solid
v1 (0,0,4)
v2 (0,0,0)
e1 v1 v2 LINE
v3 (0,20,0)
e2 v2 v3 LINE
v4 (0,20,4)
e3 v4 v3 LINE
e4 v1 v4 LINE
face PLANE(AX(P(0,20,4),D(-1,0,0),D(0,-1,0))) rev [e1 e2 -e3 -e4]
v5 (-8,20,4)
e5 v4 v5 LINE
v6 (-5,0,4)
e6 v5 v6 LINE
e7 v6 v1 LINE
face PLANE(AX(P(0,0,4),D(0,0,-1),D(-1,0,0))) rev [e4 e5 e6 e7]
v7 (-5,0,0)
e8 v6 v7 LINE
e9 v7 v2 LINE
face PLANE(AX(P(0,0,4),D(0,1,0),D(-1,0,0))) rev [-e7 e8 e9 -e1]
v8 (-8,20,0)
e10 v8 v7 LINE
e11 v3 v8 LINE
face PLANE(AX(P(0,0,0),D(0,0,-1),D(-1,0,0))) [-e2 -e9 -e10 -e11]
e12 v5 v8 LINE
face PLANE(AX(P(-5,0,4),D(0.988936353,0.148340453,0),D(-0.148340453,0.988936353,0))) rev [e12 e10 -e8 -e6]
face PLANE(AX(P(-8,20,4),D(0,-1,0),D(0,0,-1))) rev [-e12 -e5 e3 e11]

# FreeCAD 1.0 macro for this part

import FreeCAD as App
import Part
import Sketcher

V = App.Vector


def add_polygon(sketch, points):
    """Adds a closed chain of lines whose ends are joined by coincident constraints."""
    first, n = sketch.GeometryCount, len(points)
    for a, b in zip(points, points[1:] + points[:1]):
        sketch.addGeometry(Part.LineSegment(App.Vector(*a, 0), App.Vector(*b, 0)), False)
    for i in range(n):
        sketch.addConstraint(Sketcher.Constraint("Coincident", first + i, 2, first + (i + 1) % n, 1))

doc = App.newDocument("Part")
params = doc.addObject("Spreadsheet::Sheet", "Params")
for row, (alias, value) in enumerate([
    ("sketch1_width", "5 mm"),
    ("sketch1_width2", "8 mm"),
    ("sketch1_height", "20 mm"),
    ("pad1_length", "4 mm"),
], start=1):
    params.set(f"A{row}", alias)
    params.set(f"B{row}", "=" + value)
    params.setAlias(f"B{row}", alias)

body = doc.addObject("PartDesign::Body", "Body")

# Sketch on XY plane
sketch1 = body.newObject("Sketcher::SketchObject", "Sketch")
sketch1.AttachmentSupport = (doc.getObject("XY_Plane"), [""])
sketch1.MapMode = "FlatFace"
add_polygon(sketch1, [(-5, 0), (0, 0), (0, 20), (-8, 20)])  # lines 0-3
sketch1.addConstraint([
    Sketcher.Constraint("Horizontal", 0),
    Sketcher.Constraint("Vertical", 1),
    Sketcher.Constraint("Horizontal", 2),
    Sketcher.Constraint("Coincident", 0, 2, -1, 1),
    Sketcher.Constraint("DistanceX", 0, 1, 0, 2, 5.0),
    Sketcher.Constraint("DistanceX", 2, 2, 2, 1, 8.0),
    Sketcher.Constraint("DistanceY", 1, 1, 1, 2, 20.0),
])
sketch1.setExpression("Constraints[8]", "Params.sketch1_width")
sketch1.setExpression("Constraints[9]", "Params.sketch1_width2")
sketch1.setExpression("Constraints[10]", "Params.sketch1_height")
pad1 = body.newObject("PartDesign::Pad", "Pad")
pad1.Profile = sketch1
pad1.setExpression("Length", "Params.pad1_length")

doc.recompute()
